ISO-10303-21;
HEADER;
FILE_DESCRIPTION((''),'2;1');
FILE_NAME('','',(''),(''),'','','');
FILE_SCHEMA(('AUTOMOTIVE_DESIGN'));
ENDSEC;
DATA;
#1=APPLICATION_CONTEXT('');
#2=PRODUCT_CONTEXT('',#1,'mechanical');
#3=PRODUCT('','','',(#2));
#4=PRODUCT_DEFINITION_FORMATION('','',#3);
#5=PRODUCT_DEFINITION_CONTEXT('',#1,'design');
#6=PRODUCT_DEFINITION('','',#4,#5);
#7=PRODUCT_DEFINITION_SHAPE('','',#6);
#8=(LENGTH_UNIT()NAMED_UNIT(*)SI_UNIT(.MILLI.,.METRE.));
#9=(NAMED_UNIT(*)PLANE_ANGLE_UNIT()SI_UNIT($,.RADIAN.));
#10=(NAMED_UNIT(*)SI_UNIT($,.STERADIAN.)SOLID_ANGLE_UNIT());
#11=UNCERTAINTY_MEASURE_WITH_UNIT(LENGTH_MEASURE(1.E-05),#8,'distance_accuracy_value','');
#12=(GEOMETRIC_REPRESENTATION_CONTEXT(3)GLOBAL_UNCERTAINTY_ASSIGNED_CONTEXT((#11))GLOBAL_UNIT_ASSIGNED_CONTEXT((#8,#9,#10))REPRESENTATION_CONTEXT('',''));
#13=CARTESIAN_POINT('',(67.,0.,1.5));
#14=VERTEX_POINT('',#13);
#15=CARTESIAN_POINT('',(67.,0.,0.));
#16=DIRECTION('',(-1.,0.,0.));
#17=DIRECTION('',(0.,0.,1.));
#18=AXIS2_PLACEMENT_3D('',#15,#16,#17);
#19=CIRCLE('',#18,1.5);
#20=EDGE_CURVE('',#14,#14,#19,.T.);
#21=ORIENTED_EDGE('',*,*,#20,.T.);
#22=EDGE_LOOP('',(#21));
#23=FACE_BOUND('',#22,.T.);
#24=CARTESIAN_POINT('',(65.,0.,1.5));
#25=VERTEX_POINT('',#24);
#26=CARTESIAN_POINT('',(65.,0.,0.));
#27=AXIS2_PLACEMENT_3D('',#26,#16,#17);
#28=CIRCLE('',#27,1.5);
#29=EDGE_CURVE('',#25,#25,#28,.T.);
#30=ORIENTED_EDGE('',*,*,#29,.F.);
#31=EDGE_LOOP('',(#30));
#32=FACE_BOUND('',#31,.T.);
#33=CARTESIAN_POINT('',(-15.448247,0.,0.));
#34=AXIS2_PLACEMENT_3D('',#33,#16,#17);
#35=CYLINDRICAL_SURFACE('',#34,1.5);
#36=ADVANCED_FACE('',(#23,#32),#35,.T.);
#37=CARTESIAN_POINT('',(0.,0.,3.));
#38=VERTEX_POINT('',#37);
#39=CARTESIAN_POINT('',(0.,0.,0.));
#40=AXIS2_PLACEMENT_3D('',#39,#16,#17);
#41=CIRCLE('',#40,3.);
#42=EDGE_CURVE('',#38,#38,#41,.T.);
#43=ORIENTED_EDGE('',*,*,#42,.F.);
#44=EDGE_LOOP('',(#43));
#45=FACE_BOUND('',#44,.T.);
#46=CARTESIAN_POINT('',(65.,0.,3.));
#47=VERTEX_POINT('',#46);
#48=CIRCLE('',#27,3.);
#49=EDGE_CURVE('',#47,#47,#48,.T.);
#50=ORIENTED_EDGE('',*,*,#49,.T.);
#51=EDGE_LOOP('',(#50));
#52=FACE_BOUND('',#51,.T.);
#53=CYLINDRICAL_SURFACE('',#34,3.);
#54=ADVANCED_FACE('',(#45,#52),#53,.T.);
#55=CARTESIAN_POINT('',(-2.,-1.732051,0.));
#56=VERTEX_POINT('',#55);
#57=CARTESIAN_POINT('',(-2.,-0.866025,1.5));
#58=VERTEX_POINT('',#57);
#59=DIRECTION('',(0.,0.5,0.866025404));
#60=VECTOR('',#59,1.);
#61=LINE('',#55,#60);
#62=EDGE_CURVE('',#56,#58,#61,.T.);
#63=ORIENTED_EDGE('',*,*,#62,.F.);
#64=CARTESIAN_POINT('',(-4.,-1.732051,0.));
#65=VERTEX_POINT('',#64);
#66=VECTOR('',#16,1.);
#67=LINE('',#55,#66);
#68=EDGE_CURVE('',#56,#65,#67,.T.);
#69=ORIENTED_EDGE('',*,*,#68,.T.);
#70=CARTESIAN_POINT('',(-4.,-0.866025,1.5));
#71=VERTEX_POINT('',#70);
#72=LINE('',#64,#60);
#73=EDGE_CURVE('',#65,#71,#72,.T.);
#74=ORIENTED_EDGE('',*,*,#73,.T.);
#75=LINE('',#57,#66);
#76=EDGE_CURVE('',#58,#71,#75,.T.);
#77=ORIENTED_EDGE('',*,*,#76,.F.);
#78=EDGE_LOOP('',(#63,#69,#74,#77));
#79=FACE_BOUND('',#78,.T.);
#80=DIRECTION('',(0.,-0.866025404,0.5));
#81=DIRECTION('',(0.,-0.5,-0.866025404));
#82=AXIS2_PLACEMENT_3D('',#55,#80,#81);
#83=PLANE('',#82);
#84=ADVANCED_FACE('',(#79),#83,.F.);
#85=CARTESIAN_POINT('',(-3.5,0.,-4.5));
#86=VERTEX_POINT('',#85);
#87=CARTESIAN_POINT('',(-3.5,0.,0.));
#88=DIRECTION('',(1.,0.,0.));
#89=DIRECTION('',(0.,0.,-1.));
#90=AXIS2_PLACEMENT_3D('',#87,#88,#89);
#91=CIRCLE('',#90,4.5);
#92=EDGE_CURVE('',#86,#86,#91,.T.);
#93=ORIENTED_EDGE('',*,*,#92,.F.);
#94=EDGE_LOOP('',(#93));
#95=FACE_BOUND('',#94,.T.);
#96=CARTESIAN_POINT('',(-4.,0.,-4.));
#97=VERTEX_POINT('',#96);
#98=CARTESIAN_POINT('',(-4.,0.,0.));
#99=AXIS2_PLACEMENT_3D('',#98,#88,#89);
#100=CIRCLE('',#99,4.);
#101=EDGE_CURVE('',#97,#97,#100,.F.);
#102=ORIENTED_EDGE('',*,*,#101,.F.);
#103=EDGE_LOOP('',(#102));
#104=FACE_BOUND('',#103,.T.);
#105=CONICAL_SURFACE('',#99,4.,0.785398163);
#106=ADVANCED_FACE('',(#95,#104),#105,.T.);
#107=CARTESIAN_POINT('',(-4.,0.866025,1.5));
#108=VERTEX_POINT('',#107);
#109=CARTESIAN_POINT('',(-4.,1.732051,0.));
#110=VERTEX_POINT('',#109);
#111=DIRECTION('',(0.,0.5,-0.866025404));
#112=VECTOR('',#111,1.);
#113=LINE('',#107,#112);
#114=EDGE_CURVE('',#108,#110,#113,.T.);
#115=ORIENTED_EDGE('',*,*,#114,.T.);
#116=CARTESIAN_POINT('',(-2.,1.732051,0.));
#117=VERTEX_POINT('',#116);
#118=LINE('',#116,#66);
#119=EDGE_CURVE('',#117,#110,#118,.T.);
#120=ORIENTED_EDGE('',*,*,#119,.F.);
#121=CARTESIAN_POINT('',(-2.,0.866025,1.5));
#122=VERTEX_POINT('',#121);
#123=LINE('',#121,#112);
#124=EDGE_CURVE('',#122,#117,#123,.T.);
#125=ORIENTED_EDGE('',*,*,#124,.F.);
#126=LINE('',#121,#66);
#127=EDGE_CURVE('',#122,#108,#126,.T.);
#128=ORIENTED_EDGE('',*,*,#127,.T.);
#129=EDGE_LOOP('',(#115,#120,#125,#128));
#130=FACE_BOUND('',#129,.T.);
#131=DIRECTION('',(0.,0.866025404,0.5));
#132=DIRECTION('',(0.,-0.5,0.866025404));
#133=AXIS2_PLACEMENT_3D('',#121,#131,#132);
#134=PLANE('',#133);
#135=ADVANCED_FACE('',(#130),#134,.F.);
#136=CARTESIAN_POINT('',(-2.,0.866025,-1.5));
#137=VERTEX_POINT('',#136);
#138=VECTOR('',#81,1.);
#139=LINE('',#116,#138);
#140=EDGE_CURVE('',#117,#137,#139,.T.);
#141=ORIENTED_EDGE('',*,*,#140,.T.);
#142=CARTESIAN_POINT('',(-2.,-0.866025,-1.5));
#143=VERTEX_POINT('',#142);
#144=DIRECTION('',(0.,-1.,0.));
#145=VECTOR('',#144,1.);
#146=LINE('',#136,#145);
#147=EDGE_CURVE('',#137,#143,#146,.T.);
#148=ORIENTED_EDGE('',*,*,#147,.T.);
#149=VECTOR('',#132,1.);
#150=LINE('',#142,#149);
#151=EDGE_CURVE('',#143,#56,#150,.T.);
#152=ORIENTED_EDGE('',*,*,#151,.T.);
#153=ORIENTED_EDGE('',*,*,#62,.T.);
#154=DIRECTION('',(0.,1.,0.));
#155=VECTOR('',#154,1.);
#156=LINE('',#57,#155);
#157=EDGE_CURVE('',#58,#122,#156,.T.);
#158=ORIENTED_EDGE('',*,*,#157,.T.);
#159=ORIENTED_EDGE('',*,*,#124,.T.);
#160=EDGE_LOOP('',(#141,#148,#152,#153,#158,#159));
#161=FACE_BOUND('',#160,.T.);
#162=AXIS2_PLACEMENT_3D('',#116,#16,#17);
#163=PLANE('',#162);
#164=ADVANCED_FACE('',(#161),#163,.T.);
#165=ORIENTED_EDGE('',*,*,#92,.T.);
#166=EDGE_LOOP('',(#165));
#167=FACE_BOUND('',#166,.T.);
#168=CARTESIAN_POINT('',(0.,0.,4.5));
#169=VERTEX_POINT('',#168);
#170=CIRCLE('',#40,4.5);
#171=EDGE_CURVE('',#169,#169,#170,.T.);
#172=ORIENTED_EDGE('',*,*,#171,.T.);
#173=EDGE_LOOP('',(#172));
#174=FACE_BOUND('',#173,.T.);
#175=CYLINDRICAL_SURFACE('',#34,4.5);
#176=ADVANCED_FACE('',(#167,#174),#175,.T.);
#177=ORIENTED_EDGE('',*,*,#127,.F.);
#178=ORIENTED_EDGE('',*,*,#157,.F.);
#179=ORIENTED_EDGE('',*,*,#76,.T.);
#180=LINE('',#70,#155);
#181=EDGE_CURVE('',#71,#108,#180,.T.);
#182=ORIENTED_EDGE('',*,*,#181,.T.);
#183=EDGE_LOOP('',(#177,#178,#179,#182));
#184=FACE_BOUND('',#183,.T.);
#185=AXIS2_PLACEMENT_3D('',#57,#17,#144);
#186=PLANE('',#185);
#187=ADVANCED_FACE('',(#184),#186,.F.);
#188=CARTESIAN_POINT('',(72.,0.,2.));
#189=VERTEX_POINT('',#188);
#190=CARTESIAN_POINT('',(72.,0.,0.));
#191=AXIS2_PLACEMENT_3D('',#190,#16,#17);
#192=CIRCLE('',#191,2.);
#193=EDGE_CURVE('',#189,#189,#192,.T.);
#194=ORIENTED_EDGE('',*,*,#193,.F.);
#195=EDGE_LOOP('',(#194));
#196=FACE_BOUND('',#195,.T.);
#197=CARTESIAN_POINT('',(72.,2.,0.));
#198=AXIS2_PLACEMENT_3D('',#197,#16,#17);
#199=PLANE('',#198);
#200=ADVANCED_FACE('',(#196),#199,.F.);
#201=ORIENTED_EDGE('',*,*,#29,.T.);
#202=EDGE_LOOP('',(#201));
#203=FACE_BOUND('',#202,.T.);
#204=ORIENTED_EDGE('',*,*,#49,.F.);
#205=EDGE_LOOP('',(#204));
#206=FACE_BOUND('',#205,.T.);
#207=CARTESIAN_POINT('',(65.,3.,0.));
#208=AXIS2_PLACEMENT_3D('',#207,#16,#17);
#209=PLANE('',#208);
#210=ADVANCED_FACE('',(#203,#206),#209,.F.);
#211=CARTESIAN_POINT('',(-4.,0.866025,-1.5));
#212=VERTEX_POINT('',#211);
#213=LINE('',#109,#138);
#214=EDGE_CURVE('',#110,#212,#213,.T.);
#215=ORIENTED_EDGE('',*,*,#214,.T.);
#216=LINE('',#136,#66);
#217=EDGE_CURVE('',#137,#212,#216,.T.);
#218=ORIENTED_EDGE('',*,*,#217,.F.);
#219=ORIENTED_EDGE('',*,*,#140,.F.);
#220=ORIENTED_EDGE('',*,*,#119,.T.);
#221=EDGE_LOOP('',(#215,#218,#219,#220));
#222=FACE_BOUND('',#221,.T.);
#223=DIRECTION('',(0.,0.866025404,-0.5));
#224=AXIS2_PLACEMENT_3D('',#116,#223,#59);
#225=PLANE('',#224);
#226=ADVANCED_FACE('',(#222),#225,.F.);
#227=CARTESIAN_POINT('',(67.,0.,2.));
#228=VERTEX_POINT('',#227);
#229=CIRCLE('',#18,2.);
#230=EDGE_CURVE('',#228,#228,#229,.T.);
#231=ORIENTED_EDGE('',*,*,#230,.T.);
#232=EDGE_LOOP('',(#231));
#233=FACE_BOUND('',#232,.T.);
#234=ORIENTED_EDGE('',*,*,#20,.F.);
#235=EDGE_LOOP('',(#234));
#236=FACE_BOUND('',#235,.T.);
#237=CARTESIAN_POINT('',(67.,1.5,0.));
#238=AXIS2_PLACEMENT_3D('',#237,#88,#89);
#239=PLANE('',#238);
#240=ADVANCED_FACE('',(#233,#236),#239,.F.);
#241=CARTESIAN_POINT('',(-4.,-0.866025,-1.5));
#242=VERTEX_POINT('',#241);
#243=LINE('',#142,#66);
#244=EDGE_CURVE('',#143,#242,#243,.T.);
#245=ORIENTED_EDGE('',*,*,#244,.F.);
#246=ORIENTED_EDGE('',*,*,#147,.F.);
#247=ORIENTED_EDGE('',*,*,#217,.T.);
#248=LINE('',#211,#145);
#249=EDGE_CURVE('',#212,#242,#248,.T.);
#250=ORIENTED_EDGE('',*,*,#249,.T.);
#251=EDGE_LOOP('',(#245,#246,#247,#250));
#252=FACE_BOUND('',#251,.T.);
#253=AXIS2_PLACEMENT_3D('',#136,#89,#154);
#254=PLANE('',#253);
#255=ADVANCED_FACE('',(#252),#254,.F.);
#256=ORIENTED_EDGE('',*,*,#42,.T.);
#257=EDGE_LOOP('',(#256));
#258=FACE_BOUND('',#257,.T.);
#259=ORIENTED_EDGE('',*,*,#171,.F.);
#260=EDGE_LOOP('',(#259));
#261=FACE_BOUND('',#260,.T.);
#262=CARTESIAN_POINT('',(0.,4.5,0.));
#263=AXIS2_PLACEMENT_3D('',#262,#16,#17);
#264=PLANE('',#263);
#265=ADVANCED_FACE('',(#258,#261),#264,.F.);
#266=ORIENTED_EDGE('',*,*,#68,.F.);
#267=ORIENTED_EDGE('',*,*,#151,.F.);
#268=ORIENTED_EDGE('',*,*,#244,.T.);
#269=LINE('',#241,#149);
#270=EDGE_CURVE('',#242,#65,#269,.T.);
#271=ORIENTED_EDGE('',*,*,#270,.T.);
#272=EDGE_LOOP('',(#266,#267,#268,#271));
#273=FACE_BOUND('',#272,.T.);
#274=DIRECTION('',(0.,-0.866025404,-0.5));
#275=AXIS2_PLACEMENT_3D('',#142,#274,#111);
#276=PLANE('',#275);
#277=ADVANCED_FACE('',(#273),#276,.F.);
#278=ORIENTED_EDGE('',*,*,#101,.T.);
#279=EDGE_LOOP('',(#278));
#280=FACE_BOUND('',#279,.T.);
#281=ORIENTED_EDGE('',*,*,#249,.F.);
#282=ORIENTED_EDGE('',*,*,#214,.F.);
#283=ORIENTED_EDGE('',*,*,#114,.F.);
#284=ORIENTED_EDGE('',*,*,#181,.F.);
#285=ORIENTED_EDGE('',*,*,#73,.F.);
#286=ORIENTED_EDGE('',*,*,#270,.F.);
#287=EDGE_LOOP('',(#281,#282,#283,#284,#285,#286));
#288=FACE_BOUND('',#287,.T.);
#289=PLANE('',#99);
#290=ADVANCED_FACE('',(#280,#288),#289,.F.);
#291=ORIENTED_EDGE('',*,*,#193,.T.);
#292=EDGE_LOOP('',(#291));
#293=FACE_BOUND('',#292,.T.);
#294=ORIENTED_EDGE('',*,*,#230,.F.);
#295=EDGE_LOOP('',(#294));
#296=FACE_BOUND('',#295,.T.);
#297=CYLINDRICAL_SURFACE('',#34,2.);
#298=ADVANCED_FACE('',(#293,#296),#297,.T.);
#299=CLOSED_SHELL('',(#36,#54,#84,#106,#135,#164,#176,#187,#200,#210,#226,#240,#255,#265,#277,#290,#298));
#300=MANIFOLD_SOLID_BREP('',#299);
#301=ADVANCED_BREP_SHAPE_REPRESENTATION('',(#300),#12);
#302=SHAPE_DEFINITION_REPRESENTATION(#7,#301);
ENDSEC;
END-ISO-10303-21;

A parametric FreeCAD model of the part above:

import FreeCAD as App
import Part
import Sketcher
from FreeCAD import Vector
Q = App.Units.Quantity


def edges_at(feature, points):
    """Names of the edges that pass closest to the given points."""
    edges = feature.Shape.Edges
    near = lambda p: min(range(len(edges)), key=lambda i: edges[i].distToShape(Part.Vertex(*p))[0])
    return sorted({f"Edge{near(p) + 1}" for p in points})

doc = App.newDocument("Part")
body = doc.addObject("PartDesign::Body", "Body")

sketch1 = doc.addObject("Sketcher::SketchObject", "Sketch")
body.addObject(sketch1)
sketch1.AttachmentSupport = (doc.XY_Plane, [""])
sketch1.MapMode = "FlatFace"
sketch1.addGeometry([
    Part.LineSegment(Vector(65, 3, 0), Vector(0, 3, 0)),
    Part.LineSegment(Vector(0, 3, 0), Vector(0, 4.5, 0)),
    Part.LineSegment(Vector(0, 4.5, 0), Vector(-4, 4.5, 0)),
    Part.LineSegment(Vector(-4, 4.5, 0), Vector(-4, 0, 0)),
    Part.LineSegment(Vector(-4, 0, 0), Vector(72, 0, 0)),
    Part.LineSegment(Vector(72, 0, 0), Vector(72, 2, 0)),
    Part.LineSegment(Vector(72, 2, 0), Vector(67, 2, 0)),
    Part.LineSegment(Vector(67, 2, 0), Vector(67, 1.5, 0)),
    Part.LineSegment(Vector(67, 1.5, 0), Vector(65, 1.5, 0)),
    Part.LineSegment(Vector(65, 1.5, 0), Vector(65, 3, 0)),
], False)
sketch1.addConstraint([
    Sketcher.Constraint("Coincident", 0, 2, 1, 1),
    Sketcher.Constraint("Coincident", 1, 2, 2, 1),
    Sketcher.Constraint("Coincident", 2, 2, 3, 1),
    Sketcher.Constraint("Coincident", 3, 2, 4, 1),
    Sketcher.Constraint("Coincident", 4, 2, 5, 1),
    Sketcher.Constraint("Coincident", 5, 2, 6, 1),
    Sketcher.Constraint("Coincident", 6, 2, 7, 1),
    Sketcher.Constraint("Coincident", 7, 2, 8, 1),
    Sketcher.Constraint("Coincident", 8, 2, 9, 1),
    Sketcher.Constraint("Coincident", 9, 2, 0, 1),
    Sketcher.Constraint("Horizontal", 0),
    Sketcher.Constraint("Vertical", 1),
    Sketcher.Constraint("Horizontal", 2),
    Sketcher.Constraint("Vertical", 3),
    Sketcher.Constraint("Horizontal", 4),
    Sketcher.Constraint("Vertical", 5),
    Sketcher.Constraint("Horizontal", 6),
    Sketcher.Constraint("Vertical", 7),
    Sketcher.Constraint("Horizontal", 8),
    Sketcher.Constraint("Vertical", 9),
    Sketcher.Constraint("PointOnObject", 0, 2, -2),
    Sketcher.Constraint("PointOnObject", 3, 2, -1),
    Sketcher.Constraint("Equal", 8, 5),
    Sketcher.Constraint("Equal", 1, 9),
    Sketcher.Constraint("DistanceX", 0, 2, 0, 1, 65.0),
    Sketcher.Constraint("DistanceX", 2, 2, 2, 1, 4.0),
    Sketcher.Constraint("DistanceX", 4, 1, 4, 2, 76.0),
    Sketcher.Constraint("DistanceX", 6, 2, 6, 1, 5.0),
    Sketcher.Constraint("DistanceY", 1, 1, 1, 2, 1.5),
    Sketcher.Constraint("DistanceY", 3, 2, 3, 1, 4.5),
])
revolution = doc.addObject("PartDesign::Revolution", "Revolution")
body.addObject(revolution)
revolution.Profile = sketch1
revolution.ReferenceAxis = (sketch1, ["H_Axis"])
revolution.Angle = 360
doc.recompute()

chamfer = doc.addObject("PartDesign::Chamfer", "Chamfer")
body.addObject(chamfer)
chamfer.Base = (revolution, edges_at(revolution, [(-4, -4.5, 0)]))
chamfer.Size = 0.5

sketch2 = doc.addObject("Sketcher::SketchObject", "Sketch001")
body.addObject(sketch2)
sketch2.AttachmentSupport = (doc.YZ_Plane, [""])
sketch2.MapMode = "FlatFace"
sketch2.AttachmentOffset = App.Placement(Vector(0, 0, -4), App.Rotation())
sketch2.addGeometry([
    Part.LineSegment(Vector(1.732051, 0, 0), Vector(0.866025, -1.5, 0)),
    Part.LineSegment(Vector(0.866025, -1.5, 0), Vector(-0.866025, -1.5, 0)),
    Part.LineSegment(Vector(-0.866025, -1.5, 0), Vector(-1.732051, 0, 0)),
    Part.LineSegment(Vector(-1.732051, 0, 0), Vector(-0.866025, 1.5, 0)),
    Part.LineSegment(Vector(-0.866025, 1.5, 0), Vector(0.866025, 1.5, 0)),
    Part.LineSegment(Vector(0.866025, 1.5, 0), Vector(1.732051, 0, 0)),
], False)
sketch2.addConstraint([
    Sketcher.Constraint("Coincident", 0, 2, 1, 1),
    Sketcher.Constraint("Coincident", 1, 2, 2, 1),
    Sketcher.Constraint("Coincident", 2, 2, 3, 1),
    Sketcher.Constraint("Coincident", 3, 2, 4, 1),
    Sketcher.Constraint("Coincident", 4, 2, 5, 1),
    Sketcher.Constraint("Coincident", 5, 2, 0, 1),
    Sketcher.Constraint("Horizontal", 1),
    Sketcher.Constraint("Horizontal", 4),
    Sketcher.Constraint("Symmetric", 0, 2, 3, 2, -1, 1),
    Sketcher.Constraint("Symmetric", 2, 2, 5, 2, -1, 1),
    Sketcher.Constraint("PointOnObject", 2, 2, -1),
    Sketcher.Constraint("Parallel", 2, 5),
    Sketcher.Constraint("Vertical", 1, 2, 3, 2),
    Sketcher.Constraint("Angle", 0, Q("-120 deg")),
    Sketcher.Constraint("DistanceY", 1, 2, 3, 2, 3.0),
    Sketcher.Constraint("DistanceX", 1, 2, 1, 1, 1.732051),
])
pocket1 = doc.addObject("PartDesign::Pocket", "Pocket")
body.addObject(pocket1)
pocket1.Profile = sketch2
pocket1.Length = 2
pocket1.Reversed = True

doc.recompute()
